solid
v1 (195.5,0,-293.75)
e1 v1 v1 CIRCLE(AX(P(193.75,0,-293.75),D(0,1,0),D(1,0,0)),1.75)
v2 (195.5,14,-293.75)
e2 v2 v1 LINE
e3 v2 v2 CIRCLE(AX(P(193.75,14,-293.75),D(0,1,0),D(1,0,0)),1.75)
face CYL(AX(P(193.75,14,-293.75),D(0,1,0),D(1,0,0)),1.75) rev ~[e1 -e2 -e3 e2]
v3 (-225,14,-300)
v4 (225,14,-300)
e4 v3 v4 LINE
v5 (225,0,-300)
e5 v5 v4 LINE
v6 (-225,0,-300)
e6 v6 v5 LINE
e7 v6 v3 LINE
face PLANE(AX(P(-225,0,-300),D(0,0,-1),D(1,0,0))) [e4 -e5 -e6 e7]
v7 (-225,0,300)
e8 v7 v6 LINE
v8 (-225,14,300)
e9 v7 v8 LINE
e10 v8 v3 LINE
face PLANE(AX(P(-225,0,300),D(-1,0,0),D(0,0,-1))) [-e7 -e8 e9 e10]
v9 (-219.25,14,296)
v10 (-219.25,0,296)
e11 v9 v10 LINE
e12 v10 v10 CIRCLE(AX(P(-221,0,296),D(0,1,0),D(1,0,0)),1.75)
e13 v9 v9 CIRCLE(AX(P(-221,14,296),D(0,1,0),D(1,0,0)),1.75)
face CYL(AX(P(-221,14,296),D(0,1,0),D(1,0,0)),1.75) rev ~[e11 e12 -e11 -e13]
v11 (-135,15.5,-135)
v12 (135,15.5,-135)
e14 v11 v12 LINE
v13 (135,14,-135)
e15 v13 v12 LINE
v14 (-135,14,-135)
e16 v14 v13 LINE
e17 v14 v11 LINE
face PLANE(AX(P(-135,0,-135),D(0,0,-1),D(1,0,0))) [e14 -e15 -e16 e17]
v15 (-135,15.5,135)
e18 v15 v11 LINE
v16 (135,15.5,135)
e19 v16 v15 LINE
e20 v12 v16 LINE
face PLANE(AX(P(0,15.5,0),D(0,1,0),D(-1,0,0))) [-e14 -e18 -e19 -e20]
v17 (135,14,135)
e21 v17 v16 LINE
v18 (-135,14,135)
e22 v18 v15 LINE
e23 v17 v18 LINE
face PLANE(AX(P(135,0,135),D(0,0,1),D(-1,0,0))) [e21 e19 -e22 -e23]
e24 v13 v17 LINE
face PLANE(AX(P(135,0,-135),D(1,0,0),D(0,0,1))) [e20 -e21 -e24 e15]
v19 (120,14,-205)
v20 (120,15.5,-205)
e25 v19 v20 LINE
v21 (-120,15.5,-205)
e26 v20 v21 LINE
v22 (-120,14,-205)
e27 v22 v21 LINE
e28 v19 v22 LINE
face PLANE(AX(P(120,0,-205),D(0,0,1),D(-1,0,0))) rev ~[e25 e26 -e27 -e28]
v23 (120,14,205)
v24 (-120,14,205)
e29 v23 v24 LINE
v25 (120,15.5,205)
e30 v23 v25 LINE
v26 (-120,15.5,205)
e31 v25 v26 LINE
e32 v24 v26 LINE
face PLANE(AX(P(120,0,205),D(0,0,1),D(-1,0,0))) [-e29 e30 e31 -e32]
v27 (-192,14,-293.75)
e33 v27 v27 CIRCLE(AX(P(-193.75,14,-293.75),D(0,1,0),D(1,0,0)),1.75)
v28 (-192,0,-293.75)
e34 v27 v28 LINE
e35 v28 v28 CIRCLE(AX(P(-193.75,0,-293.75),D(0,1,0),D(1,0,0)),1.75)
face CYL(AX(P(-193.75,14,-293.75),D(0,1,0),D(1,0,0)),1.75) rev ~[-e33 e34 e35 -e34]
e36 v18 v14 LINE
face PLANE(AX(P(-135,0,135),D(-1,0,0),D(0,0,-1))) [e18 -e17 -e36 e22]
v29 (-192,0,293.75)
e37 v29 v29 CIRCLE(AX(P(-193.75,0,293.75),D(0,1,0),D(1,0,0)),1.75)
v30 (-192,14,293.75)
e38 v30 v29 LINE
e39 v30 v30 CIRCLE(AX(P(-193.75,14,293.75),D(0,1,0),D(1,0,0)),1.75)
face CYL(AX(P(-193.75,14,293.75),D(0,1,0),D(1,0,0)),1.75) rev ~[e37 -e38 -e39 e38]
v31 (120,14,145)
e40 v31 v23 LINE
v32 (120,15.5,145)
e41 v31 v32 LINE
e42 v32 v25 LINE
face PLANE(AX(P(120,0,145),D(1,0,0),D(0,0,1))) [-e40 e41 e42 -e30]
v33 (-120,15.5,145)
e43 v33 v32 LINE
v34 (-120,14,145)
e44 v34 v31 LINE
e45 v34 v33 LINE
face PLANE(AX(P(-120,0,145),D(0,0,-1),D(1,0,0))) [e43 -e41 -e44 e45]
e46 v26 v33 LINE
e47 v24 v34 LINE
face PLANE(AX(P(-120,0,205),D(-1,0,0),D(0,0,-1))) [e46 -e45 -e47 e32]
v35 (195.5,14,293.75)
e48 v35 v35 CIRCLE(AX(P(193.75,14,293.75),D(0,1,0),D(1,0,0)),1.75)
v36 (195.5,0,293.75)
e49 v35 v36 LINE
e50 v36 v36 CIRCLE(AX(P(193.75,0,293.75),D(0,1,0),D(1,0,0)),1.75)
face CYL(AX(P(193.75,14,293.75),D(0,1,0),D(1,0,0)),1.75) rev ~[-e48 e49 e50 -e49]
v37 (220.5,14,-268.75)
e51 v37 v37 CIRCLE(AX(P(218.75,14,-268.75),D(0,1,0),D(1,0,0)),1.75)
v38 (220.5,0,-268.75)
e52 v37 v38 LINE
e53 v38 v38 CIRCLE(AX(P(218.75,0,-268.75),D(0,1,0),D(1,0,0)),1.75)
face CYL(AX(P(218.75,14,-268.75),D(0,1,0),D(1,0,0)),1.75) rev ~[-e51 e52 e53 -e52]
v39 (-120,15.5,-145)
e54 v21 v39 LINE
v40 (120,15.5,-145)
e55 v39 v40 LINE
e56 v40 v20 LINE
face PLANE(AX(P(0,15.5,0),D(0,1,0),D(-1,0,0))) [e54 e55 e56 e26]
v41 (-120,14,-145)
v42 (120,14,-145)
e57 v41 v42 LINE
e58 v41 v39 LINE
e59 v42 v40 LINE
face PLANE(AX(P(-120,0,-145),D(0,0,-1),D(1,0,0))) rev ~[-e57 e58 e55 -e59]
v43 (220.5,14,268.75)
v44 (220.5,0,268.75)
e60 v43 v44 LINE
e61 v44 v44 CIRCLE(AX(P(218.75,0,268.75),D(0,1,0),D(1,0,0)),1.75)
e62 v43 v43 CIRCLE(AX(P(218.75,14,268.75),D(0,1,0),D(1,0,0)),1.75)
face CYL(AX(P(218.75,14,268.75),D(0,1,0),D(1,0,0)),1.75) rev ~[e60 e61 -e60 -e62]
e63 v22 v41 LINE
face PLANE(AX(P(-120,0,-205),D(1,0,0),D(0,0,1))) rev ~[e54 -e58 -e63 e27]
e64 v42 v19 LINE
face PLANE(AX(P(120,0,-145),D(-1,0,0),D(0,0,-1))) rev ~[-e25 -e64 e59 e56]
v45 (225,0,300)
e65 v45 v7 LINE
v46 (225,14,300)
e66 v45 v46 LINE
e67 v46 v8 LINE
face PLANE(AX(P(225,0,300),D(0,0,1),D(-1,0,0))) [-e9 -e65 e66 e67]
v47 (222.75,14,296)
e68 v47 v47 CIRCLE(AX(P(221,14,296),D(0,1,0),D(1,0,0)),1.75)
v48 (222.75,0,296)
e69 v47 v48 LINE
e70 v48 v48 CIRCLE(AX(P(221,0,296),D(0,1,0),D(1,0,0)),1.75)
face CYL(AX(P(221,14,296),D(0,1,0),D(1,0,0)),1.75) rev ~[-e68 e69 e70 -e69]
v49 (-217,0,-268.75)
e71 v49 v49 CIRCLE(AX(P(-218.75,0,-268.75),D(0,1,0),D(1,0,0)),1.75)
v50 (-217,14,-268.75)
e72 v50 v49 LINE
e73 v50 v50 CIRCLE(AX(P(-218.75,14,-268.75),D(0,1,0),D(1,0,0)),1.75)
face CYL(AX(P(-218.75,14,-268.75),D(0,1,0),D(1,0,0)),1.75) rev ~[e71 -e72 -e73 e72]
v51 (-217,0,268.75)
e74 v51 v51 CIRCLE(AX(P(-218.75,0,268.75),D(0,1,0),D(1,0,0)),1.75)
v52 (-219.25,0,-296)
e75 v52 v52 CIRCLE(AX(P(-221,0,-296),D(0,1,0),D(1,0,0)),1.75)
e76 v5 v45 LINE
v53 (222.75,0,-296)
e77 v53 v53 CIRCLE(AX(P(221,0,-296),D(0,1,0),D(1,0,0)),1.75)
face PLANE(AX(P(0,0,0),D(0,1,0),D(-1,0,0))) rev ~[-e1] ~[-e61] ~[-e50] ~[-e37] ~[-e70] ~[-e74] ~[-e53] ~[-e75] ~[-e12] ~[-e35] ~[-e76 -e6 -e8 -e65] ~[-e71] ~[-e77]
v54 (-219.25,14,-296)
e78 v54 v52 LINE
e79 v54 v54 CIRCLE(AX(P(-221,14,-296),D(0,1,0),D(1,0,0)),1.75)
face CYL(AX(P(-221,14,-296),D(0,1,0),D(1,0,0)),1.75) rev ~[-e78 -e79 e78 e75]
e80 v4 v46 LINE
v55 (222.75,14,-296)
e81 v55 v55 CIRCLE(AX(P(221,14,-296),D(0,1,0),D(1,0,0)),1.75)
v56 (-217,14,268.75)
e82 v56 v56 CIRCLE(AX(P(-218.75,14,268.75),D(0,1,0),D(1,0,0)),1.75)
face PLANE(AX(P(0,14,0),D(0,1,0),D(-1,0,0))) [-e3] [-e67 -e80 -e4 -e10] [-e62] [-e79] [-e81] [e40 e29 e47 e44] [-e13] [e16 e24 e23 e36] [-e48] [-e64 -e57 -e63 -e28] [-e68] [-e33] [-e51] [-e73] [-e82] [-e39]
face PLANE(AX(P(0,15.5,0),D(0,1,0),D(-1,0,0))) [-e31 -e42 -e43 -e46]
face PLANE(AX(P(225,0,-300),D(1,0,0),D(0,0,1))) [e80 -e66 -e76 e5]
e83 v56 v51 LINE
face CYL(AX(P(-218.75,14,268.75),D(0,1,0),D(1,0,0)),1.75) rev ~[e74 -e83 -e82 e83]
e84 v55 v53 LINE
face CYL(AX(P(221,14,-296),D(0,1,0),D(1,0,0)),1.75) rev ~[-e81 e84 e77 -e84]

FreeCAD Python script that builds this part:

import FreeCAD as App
import Part
import Sketcher
Q = App.Units.Quantity


def add_polygon(sketch, points):
    """Adds a closed chain of lines whose ends are joined by coincident constraints."""
    first, n = sketch.GeometryCount, len(points)
    for a, b in zip(points, points[1:] + points[:1]):
        sketch.addGeometry(Part.LineSegment(App.Vector(*a, 0), App.Vector(*b, 0)), False)
    for i in range(n):
        sketch.addConstraint(Sketcher.Constraint("Coincident", first + i, 2, first + (i + 1) % n, 1))

doc = App.newDocument("Part")
body = doc.addObject("PartDesign::Body", "Body")

# Sketch on XZ plane
sketch1 = doc.addObject("Sketcher::SketchObject", "Sketch")
body.addObject(sketch1)
sketch1.AttachmentSupport = (doc.XZ_Plane, [""])
sketch1.MapMode = "FlatFace"
add_polygon(sketch1, [(-225, 300), (225, 300), (225, -300), (-225, -300)])  # lines 0-3
add_polygon(sketch1, [(120, -145), (-120, -145), (-120, -205), (120, -205)])  # lines 4-7
add_polygon(sketch1, [(135, -135), (135, 135), (-135, 135), (-135, -135)])  # lines 8-11
add_polygon(sketch1, [(-120, 205), (-120, 145), (120, 145), (120, 205)])  # lines 12-15
sketch1.addConstraint([
    Sketcher.Constraint("Horizontal", 0),
    Sketcher.Constraint("Vertical", 1),
    Sketcher.Constraint("Horizontal", 2),
    Sketcher.Constraint("Vertical", 3),
    Sketcher.Constraint("Horizontal", 4),
    Sketcher.Constraint("Vertical", 5),
    Sketcher.Constraint("Horizontal", 6),
    Sketcher.Constraint("Vertical", 7),
    Sketcher.Constraint("Vertical", 8),
    Sketcher.Constraint("Horizontal", 9),
    Sketcher.Constraint("Vertical", 10),
    Sketcher.Constraint("Horizontal", 11),
    Sketcher.Constraint("Vertical", 12),
    Sketcher.Constraint("Horizontal", 13),
    Sketcher.Constraint("Vertical", 14),
    Sketcher.Constraint("Horizontal", 15),
    Sketcher.Constraint("Symmetric", 0, 2, 2, 2, -1, 1),
    Sketcher.Constraint("Symmetric", 8, 2, 10, 2, -1, 1),
    Sketcher.Constraint("Symmetric", 7, 2, 12, 2, -1, 1),
    Sketcher.Constraint("Symmetric", 5, 2, 14, 2, -1, 1),
    Sketcher.Constraint("Vertical", 5, 2, 12, 2),
    Sketcher.Constraint("Equal", 11, 8),
    Sketcher.Constraint("DistanceX", 0, 1, 0, 2, Q("450 mm")),
    Sketcher.Constraint("DistanceX", 4, 2, 4, 1, Q("240 mm")),
    Sketcher.Constraint("DistanceX", 9, 2, 9, 1, Q("270 mm")),
    Sketcher.Constraint("DistanceY", 1, 2, 1, 1, Q("600 mm")),
    Sketcher.Constraint("DistanceY", 5, 2, 5, 1, Q("60 mm")),
    Sketcher.Constraint("DistanceY", 4, 2, 10, 2, Q("10 mm")),
])
pad1 = doc.addObject("PartDesign::Pad", "Pad")
body.addObject(pad1)
pad1.Profile = sketch1
pad1.Length = 14
pad1.Reversed = True

# Sketch on XZ plane
sketch2 = doc.addObject("Sketcher::SketchObject", "Sketch001")
body.addObject(sketch2)
sketch2.AttachmentSupport = (doc.XZ_Plane, [""])
sketch2.MapMode = "FlatFace"
add_polygon(sketch2, [(-135, 135), (135, 135), (135, -135), (-135, -135)])  # lines 0-3
add_polygon(sketch2, [(120, 145), (-120, 145), (-120, 205), (120, 205)])  # lines 4-7
add_polygon(sketch2, [(-120, -205), (-120, -145), (120, -145), (120, -205)])  # lines 8-11
sketch2.addConstraint([
    Sketcher.Constraint("Horizontal", 0),
    Sketcher.Constraint("Vertical", 1),
    Sketcher.Constraint("Horizontal", 2),
    Sketcher.Constraint("Vertical", 3),
    Sketcher.Constraint("Horizontal", 4),
    Sketcher.Constraint("Vertical", 5),
    Sketcher.Constraint("Horizontal", 6),
    Sketcher.Constraint("Vertical", 7),
    Sketcher.Constraint("Vertical", 8),
    Sketcher.Constraint("Horizontal", 9),
    Sketcher.Constraint("Vertical", 10),
    Sketcher.Constraint("Horizontal", 11),
    Sketcher.Constraint("Symmetric", 0, 2, 2, 2, -1, 1),
    Sketcher.Constraint("Symmetric", 7, 2, 8, 2, -1, 1),
    Sketcher.Constraint("Symmetric", 5, 2, 10, 2, -1, 1),
    Sketcher.Constraint("Vertical", 5, 2, 8, 2),
    Sketcher.Constraint("Equal", 2, 1),
    Sketcher.Constraint("DistanceX", 0, 1, 0, 2, Q("270 mm")),
    Sketcher.Constraint("DistanceX", 4, 2, 4, 1, Q("240 mm")),
    Sketcher.Constraint("DistanceY", 5, 1, 5, 2, Q("60 mm")),
    Sketcher.Constraint("DistanceY", 3, 2, 4, 2, Q("10 mm")),
])
pad2 = doc.addObject("PartDesign::Pad", "Pad001")
body.addObject(pad2)
pad2.Profile = sketch2
pad2.Length = 15.5
pad2.Reversed = True

# Sketch on XZ plane
sketch3 = doc.addObject("Sketcher::SketchObject", "Sketch002")
body.addObject(sketch3)
sketch3.AttachmentSupport = (doc.XZ_Plane, [""])
sketch3.MapMode = "FlatFace"
sketch3.AttachmentOffset = App.Placement(App.Vector(0, 0, -14), App.Rotation())
sketch3.addGeometry([
    Part.Circle(App.Vector(-193.75, -293.75, 0), App.Vector(0, 0, 1), 1.75),  # 0
    Part.Circle(App.Vector(-218.75, -268.75, 0), App.Vector(0, 0, 1), 1.75),  # 1
    Part.Circle(App.Vector(-221, -296, 0), App.Vector(0, 0, 1), 1.75),  # 2
    Part.Circle(App.Vector(221, -296, 0), App.Vector(0, 0, 1), 1.75),  # 3
    Part.Circle(App.Vector(218.75, -268.75, 0), App.Vector(0, 0, 1), 1.75),  # 4
    Part.Circle(App.Vector(193.75, -293.75, 0), App.Vector(0, 0, 1), 1.75),  # 5
    Part.Circle(App.Vector(218.75, 268.75, 0), App.Vector(0, 0, 1), 1.75),  # 6
    Part.Circle(App.Vector(221, 296, 0), App.Vector(0, 0, 1), 1.75),  # 7
    Part.Circle(App.Vector(193.75, 293.75, 0), App.Vector(0, 0, 1), 1.75),  # 8
    Part.Circle(App.Vector(-218.75, 268.75, 0), App.Vector(0, 0, 1), 1.75),  # 9
    Part.Circle(App.Vector(-221, 296, 0), App.Vector(0, 0, 1), 1.75),  # 10
    Part.Circle(App.Vector(-193.75, 293.75, 0), App.Vector(0, 0, 1), 1.75),  # 11
], False)
sketch3.addConstraint([
    Sketcher.Constraint("Equal", 0, 1),
    Sketcher.Constraint("Equal", 1, 2),
    Sketcher.Constraint("Equal", 2, 3),
    Sketcher.Constraint("Equal", 3, 4),
    Sketcher.Constraint("Equal", 4, 5),
    Sketcher.Constraint("Equal", 5, 6),
    Sketcher.Constraint("Equal", 6, 7),
    Sketcher.Constraint("Equal", 7, 8),
    Sketcher.Constraint("Equal", 8, 9),
    Sketcher.Constraint("Equal", 9, 10),
    Sketcher.Constraint("Equal", 10, 11),
    Sketcher.Constraint("Symmetric", 1, 3, 6, 3, -1, 1),
    Sketcher.Constraint("Symmetric", 2, 3, 7, 3, -1, 1),
    Sketcher.Constraint("Symmetric", 0, 3, 8, 3, -1, 1),
    Sketcher.Constraint("Symmetric", 4, 3, 9, 3, -1, 1),
    Sketcher.Constraint("Symmetric", 3, 3, 10, 3, -1, 1),
    Sketcher.Constraint("Symmetric", 5, 3, 11, 3, -1, 1),
    Sketcher.Constraint("Symmetric", 2, 3, 3, 3, -2),
    Sketcher.Constraint("Symmetric", 1, 3, 4, 3, -2),
    Sketcher.Constraint("Symmetric", 0, 3, 5, 3, -2),
    Sketcher.Constraint("Diameter", 0, Q("3.5 mm")),
    Sketcher.Constraint("DistanceX", 2, 3, 0, 3, Q("27.25 mm")),
    Sketcher.Constraint("DistanceY", 2, 3, 0, 3, Q("2.25 mm")),
    Sketcher.Constraint("DistanceX", 2, 3, 1, 3, Q("2.25 mm")),
    Sketcher.Constraint("DistanceY", 2, 3, 1, 3, Q("27.25 mm")),
    Sketcher.Constraint("DistanceX", 2, 3, -1, 1, Q("221 mm")),
    Sketcher.Constraint("DistanceY", 2, 3, -1, 1, Q("296 mm")),
])
pocket1 = doc.addObject("PartDesign::Pocket", "Pocket")
body.addObject(pocket1)
pocket1.Profile = sketch3
pocket1.Type = "ThroughAll"
pocket1.Reversed = True

doc.recompute()
